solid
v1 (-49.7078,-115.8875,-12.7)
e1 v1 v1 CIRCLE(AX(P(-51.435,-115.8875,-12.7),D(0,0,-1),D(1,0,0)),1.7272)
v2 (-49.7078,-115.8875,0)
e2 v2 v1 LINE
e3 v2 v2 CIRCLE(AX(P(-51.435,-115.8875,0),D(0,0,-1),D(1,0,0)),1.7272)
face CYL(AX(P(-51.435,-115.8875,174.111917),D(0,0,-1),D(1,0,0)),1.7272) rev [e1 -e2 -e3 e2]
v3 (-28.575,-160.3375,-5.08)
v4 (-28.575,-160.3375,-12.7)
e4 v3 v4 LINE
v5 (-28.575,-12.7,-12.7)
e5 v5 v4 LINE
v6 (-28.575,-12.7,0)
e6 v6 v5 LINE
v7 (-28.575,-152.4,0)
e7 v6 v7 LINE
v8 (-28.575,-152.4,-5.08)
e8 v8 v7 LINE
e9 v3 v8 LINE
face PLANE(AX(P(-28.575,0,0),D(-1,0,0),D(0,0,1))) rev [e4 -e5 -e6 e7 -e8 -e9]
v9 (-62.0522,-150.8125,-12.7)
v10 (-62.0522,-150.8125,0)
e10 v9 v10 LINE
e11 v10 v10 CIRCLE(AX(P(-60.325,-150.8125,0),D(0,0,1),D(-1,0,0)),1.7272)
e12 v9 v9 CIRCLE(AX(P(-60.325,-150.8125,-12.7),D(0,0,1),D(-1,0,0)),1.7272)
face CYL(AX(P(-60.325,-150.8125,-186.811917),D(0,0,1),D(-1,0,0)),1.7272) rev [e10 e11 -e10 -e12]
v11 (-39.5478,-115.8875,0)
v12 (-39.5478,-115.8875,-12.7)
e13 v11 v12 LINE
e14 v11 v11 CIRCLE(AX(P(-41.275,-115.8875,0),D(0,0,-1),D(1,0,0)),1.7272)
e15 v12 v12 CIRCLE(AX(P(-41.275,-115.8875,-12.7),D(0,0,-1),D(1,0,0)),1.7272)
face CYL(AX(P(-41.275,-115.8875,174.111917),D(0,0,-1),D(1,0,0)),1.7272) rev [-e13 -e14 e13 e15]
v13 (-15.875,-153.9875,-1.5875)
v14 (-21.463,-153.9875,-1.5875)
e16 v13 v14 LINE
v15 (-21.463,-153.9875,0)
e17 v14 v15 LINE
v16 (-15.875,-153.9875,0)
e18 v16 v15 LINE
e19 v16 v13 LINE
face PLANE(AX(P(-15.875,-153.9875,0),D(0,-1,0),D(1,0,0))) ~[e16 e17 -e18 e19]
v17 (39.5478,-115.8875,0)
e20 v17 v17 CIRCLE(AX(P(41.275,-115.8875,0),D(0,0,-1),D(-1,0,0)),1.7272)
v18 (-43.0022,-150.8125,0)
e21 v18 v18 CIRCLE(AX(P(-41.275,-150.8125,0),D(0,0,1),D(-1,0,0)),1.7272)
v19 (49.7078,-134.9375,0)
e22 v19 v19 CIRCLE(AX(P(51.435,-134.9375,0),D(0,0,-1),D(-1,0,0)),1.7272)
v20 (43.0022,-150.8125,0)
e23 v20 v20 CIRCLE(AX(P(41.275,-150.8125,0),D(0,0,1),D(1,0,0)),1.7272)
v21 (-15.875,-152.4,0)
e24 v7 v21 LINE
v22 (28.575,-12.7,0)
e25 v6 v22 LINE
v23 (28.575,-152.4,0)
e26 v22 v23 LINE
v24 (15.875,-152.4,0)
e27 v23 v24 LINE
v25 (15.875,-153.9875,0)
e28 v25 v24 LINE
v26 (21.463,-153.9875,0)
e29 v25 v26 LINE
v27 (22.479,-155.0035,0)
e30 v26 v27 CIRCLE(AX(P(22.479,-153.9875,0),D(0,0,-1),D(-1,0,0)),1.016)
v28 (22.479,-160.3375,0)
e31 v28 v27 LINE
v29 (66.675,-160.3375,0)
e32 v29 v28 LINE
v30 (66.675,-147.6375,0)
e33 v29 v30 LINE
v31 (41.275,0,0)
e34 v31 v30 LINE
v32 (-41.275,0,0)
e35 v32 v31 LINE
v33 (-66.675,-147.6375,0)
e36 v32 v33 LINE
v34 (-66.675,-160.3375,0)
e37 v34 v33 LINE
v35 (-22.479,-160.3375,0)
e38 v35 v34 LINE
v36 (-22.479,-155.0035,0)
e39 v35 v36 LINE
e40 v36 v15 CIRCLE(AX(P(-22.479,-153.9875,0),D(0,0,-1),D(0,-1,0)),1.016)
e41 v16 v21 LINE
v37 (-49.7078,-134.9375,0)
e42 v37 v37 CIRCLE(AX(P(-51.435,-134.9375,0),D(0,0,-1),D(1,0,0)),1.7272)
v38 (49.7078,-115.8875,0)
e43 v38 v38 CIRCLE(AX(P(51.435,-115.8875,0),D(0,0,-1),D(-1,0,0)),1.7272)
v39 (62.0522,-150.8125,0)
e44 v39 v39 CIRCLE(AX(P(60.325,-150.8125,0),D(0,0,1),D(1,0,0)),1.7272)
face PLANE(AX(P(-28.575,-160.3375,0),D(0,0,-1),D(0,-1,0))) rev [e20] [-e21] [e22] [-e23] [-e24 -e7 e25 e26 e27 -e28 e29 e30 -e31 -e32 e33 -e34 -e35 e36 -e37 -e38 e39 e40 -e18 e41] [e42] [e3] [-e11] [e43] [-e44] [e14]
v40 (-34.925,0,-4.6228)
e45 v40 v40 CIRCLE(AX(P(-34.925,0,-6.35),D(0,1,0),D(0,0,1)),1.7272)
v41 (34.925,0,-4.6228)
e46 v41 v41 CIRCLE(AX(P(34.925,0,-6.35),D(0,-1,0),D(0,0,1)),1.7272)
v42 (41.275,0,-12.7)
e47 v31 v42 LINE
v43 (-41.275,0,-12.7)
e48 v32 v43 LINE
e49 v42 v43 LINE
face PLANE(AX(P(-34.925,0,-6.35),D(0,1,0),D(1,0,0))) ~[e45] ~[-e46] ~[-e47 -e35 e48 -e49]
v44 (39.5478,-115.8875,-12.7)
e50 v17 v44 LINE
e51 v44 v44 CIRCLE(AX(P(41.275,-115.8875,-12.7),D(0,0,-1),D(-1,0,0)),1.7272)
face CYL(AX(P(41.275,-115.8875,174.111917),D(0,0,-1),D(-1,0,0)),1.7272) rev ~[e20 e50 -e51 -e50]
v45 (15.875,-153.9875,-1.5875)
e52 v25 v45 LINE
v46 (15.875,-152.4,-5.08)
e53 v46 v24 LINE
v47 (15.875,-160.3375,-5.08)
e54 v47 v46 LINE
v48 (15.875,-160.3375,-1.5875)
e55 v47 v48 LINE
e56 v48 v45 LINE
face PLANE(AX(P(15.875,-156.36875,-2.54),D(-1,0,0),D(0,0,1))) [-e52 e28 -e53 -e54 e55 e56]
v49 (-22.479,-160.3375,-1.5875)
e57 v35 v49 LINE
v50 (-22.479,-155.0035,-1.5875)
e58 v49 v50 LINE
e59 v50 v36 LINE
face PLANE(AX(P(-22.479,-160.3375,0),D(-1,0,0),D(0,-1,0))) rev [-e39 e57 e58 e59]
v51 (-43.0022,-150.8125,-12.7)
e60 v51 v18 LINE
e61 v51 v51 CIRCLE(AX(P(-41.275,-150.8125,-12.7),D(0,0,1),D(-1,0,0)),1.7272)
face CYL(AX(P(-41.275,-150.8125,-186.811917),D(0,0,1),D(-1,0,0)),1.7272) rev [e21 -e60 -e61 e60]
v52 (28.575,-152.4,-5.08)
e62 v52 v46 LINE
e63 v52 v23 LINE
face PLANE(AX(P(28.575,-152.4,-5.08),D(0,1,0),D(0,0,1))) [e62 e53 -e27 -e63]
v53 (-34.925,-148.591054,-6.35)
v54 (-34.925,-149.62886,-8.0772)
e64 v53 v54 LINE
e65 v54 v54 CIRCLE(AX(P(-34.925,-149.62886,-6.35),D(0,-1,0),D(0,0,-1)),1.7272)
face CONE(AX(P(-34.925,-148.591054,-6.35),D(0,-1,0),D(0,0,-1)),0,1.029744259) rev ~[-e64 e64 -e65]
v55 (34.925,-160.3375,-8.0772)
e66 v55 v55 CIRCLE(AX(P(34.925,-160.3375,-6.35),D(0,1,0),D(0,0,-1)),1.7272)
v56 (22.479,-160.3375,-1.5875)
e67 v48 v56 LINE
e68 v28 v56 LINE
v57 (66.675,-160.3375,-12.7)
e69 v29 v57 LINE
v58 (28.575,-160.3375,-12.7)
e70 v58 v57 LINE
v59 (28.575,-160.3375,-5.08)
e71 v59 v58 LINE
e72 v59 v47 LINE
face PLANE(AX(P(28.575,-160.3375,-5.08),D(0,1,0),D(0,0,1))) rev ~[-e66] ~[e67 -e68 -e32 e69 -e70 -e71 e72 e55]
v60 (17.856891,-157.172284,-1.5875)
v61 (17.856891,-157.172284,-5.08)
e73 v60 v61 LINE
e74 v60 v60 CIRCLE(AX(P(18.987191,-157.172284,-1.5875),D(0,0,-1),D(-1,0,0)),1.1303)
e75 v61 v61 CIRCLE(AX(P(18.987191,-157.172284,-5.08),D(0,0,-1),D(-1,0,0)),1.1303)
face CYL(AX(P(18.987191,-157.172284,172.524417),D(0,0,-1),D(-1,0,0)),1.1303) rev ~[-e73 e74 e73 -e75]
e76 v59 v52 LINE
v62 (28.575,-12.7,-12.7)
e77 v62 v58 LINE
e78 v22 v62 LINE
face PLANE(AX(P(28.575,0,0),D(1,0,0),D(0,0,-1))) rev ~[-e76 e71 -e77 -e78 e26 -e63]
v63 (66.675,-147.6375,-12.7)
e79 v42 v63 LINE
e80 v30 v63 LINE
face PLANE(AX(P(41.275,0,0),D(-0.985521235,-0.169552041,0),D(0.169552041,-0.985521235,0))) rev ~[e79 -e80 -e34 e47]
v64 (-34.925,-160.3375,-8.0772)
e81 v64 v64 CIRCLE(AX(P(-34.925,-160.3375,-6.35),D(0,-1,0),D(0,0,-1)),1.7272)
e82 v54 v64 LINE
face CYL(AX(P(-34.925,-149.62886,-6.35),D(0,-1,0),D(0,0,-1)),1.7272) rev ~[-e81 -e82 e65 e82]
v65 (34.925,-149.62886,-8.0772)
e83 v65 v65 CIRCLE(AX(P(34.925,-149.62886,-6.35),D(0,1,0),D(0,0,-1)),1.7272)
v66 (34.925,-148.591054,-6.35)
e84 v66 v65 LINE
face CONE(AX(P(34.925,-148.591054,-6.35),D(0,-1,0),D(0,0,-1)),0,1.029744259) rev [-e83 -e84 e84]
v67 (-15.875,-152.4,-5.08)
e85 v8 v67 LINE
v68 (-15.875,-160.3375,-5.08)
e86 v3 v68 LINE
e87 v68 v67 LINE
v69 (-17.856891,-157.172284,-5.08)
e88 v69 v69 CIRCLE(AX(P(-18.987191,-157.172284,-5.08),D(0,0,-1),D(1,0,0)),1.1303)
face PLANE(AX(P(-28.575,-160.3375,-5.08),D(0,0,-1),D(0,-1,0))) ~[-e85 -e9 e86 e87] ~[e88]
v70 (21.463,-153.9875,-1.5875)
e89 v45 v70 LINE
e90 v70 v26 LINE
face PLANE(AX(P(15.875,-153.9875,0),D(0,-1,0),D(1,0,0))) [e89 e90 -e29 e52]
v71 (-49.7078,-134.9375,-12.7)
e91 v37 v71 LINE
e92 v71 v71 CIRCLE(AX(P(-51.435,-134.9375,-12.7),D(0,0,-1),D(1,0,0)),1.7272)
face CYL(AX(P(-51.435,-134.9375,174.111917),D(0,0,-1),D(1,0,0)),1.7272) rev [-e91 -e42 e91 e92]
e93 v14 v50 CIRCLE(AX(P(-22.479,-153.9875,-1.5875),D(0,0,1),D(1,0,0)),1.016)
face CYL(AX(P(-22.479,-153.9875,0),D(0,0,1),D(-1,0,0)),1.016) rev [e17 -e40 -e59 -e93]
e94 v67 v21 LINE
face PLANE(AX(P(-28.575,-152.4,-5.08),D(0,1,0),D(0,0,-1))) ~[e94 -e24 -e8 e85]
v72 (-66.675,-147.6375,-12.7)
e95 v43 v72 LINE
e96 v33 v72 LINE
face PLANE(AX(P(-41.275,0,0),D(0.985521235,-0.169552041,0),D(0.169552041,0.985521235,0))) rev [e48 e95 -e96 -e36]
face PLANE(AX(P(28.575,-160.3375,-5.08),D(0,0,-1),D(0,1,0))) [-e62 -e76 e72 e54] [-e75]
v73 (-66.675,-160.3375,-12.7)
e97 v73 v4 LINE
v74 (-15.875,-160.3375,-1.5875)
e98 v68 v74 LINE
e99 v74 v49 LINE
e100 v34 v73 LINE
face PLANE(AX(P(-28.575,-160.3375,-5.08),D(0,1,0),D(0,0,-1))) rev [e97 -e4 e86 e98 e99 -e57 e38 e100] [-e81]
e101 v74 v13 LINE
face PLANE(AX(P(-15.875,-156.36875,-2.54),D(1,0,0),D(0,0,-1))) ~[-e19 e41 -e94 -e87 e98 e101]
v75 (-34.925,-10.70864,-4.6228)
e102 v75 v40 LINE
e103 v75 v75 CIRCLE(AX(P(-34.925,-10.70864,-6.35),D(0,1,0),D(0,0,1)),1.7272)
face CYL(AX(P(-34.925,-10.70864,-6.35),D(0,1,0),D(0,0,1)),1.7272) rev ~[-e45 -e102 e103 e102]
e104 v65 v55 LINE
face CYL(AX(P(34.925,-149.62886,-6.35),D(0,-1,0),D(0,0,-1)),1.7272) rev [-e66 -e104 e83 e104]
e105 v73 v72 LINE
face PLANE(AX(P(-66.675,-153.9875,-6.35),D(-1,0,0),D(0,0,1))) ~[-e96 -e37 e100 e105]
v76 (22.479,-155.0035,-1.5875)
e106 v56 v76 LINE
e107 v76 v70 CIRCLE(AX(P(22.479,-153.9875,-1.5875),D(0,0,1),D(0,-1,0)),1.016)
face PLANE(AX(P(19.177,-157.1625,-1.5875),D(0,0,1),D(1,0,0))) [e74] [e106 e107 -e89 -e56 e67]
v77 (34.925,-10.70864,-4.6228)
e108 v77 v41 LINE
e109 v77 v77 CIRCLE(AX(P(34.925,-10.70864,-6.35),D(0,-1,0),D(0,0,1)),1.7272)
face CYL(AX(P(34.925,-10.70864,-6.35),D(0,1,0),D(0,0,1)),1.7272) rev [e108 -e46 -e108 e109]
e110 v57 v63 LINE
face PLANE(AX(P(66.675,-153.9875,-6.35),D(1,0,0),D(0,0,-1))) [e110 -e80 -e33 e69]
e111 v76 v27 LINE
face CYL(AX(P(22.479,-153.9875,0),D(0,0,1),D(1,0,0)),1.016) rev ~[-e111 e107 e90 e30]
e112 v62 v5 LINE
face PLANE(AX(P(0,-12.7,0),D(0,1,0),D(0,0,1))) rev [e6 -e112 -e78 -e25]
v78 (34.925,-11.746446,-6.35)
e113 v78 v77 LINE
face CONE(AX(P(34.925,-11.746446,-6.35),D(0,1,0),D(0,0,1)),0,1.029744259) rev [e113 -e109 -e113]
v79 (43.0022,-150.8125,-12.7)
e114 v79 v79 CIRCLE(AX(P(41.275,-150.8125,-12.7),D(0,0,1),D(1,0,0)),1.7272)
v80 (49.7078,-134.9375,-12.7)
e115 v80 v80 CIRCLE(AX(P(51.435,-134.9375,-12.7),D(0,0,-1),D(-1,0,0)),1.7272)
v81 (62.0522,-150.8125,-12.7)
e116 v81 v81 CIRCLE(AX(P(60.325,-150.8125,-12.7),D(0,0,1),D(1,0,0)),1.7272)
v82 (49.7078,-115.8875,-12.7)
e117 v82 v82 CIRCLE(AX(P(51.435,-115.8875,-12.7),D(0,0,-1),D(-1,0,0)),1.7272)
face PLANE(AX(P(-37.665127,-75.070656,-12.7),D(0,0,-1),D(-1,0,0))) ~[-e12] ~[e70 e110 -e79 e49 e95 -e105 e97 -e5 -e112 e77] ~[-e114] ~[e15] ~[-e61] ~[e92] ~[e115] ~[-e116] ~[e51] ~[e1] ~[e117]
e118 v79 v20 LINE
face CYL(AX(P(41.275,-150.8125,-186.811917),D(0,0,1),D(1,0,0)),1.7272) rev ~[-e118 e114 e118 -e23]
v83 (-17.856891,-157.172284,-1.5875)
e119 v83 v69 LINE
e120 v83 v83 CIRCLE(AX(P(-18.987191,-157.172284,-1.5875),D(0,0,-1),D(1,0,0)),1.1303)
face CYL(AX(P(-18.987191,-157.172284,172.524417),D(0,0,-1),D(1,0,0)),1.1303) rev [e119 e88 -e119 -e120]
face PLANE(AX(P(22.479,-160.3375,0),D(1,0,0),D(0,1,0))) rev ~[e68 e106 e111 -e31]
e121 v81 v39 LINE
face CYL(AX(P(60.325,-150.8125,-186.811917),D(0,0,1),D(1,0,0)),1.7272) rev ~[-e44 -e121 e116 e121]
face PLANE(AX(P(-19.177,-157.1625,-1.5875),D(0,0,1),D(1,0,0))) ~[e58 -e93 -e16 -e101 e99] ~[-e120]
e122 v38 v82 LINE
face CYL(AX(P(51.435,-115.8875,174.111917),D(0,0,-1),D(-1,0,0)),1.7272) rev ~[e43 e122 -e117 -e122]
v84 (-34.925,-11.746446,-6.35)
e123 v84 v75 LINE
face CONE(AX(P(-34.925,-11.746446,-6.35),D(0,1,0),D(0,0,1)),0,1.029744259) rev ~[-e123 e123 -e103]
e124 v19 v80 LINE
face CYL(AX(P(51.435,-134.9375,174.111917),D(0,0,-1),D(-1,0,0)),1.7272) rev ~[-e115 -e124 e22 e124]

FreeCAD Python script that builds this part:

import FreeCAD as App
import Part
import Sketcher
from FreeCAD import Vector
Q = App.Units.Quantity


def add_polygon(sketch, points):
    """Adds a closed chain of lines whose ends are joined by coincident constraints."""
    first, n = sketch.GeometryCount, len(points)
    for a, b in zip(points, points[1:] + points[:1]):
        sketch.addGeometry(Part.LineSegment(App.Vector(*a, 0), App.Vector(*b, 0)), False)
    for i in range(n):
        sketch.addConstraint(Sketcher.Constraint("Coincident", first + i, 2, first + (i + 1) % n, 1))

doc = App.newDocument("Part")
body = doc.addObject("PartDesign::Body", "Body")

# Sketch on YZ plane
sketch1 = body.newObject("Sketcher::SketchObject", "Sketch")
sketch1.AttachmentSupport = (doc.getObject("YZ_Plane"), [""])
sketch1.MapMode = "FlatFace"
add_polygon(sketch1, [(0, 0), (-13, 0), (-13, -13), (0, -13)])  # lines 0-3
sketch1.addConstraint([
    Sketcher.Constraint("Horizontal", 0),
    Sketcher.Constraint("Vertical", 1),
    Sketcher.Constraint("Horizontal", 2),
    Sketcher.Constraint("Vertical", 3),
    Sketcher.Constraint("Coincident", 3, 2, -1, 1),
    Sketcher.Constraint("Equal", 2, 1),
    Sketcher.Constraint("DistanceX", 0, 2, 0, 1, Q("0.5 in")),
])
pad1 = body.newObject("PartDesign::Pad", "Pad")
pad1.Profile = sketch1
pad1.Length = Q("1.125 in")

# Sketch on XZ plane
sketch2 = body.newObject("Sketcher::SketchObject", "Sketch001")
sketch2.AttachmentSupport = (doc.getObject("XZ_Plane"), [""])
sketch2.MapMode = "FlatFace"
add_polygon(sketch2, [(29, -13), (29, 0), (41, 0), (41, -13)])  # lines 0-3
sketch2.addConstraint([
    Sketcher.Constraint("Vertical", 0),
    Sketcher.Constraint("Horizontal", 1),
    Sketcher.Constraint("Vertical", 2),
    Sketcher.Constraint("Horizontal", 3),
    Sketcher.Constraint("PointOnObject", 0, 2, -1),
    Sketcher.Constraint("Equal", 3, 0),
    Sketcher.Constraint("DistanceX", 1, 1, 1, 2, Q("0.5 in")),
    Sketcher.Constraint("DistanceX", -1, 1, 0, 2, Q("1.125 in")),
])
pad2 = body.newObject("PartDesign::Pad", "Pad001")
pad2.Profile = sketch2
pad2.Length = Q("6.3125 in")

# Sketch on YZ plane
sketch3 = body.newObject("Sketcher::SketchObject", "Sketch002")
sketch3.AttachmentSupport = (doc.getObject("YZ_Plane"), [""])
sketch3.MapMode = "FlatFace"
sketch3.AttachmentOffset = App.Placement(Vector(0, 0, 1.625 * 25.4), App.Rotation())
add_polygon(sketch3, [(-148, 0), (-160, 0), (-160, -13), (-148, -13)])  # lines 0-3
sketch3.addConstraint([
    Sketcher.Constraint("Horizontal", 0),
    Sketcher.Constraint("Vertical", 1),
    Sketcher.Constraint("Horizontal", 2),
    Sketcher.Constraint("Vertical", 3),
    Sketcher.Constraint("PointOnObject", 0, 2, -1),
    Sketcher.Constraint("Equal", 2, 1),
    Sketcher.Constraint("DistanceX", 0, 2, 0, 1, Q("0.5 in")),
    Sketcher.Constraint("DistanceX", 0, 2, -1, 1, Q("6.3125 in")),
])
pad3 = body.newObject("PartDesign::Pad", "Pad002")
pad3.Profile = sketch3
pad3.Length = Q("1 in")

# Sketch on XY plane
sketch4 = body.newObject("Sketcher::SketchObject", "Sketch003")
sketch4.AttachmentSupport = (doc.getObject("XY_Plane"), [""])
sketch4.MapMode = "FlatFace"
add_polygon(sketch4, [(67, -148), (41, 0), (0, 0), (0, -13), (29, -13), (29, -160), (67, -160)])  # lines 0-6
sketch4.addConstraint([
    Sketcher.Constraint("Horizontal", 1),
    Sketcher.Constraint("Vertical", 2),
    Sketcher.Constraint("Horizontal", 3),
    Sketcher.Constraint("Vertical", 4),
    Sketcher.Constraint("Horizontal", 5),
    Sketcher.Constraint("Vertical", 6),
    Sketcher.Constraint("Coincident", 1, 2, -1, 1),
    Sketcher.Constraint("Equal", 2, 6),
    Sketcher.Constraint("DistanceX", 5, 1, 5, 2, Q("1.5 in")),
    Sketcher.Constraint("DistanceY", 2, 2, 2, 1, Q("0.5 in")),
    Sketcher.Constraint("DistanceX", 0, 2, 5, 2, Q("1 in")),
    Sketcher.Constraint("DistanceX", 1, 2, 1, 1, Q("1.625 in")),
    Sketcher.Constraint("DistanceY", 4, 2, 4, 1, Q("5.8125 in")),
])
pad4 = body.newObject("PartDesign::Pad", "Pad003")
pad4.Profile = sketch4
pad4.Length = Q("0.5 in")
pad4.Reversed = True

# Sketch on YZ plane
sketch5 = body.newObject("Sketcher::SketchObject", "Sketch004")
sketch5.AttachmentSupport = (doc.getObject("YZ_Plane"), [""])
sketch5.MapMode = "FlatFace"
sketch5.AttachmentOffset = App.Placement(Vector(0, 0, 1.375 * 25.4), App.Rotation())
add_polygon(sketch5, [(-11.7, -6.3), (0, -6.3), (0, -4.6), (-10.7, -4.6)])  # lines 0-3
sketch5.addGeometry(Part.LineSegment(Vector(0, -6.3, 0), Vector(-11.7, -6.3, 0)), True)  # axis
sketch5.addConstraint([
    Sketcher.Constraint("Horizontal", 0),
    Sketcher.Constraint("Vertical", 1),
    Sketcher.Constraint("Horizontal", 2),
    Sketcher.Constraint("Horizontal", 4),
    Sketcher.Constraint("Coincident", 4, 1, 0, 2),
    Sketcher.Constraint("PointOnObject", 0, 2, -2),
    Sketcher.Constraint("Equal", 0, 4),
    Sketcher.Constraint("Angle", 3, Q("-121 deg")),
    Sketcher.Constraint("DistanceY", 1, 1, 1, 2, Q("0.068 in")),
    Sketcher.Constraint("DistanceY", 0, 2, -1, 1, Q("0.25 in")),
    Sketcher.Constraint("DistanceX", 2, 2, 2, 1, Q("0.4216 in")),
])
groove = body.newObject("PartDesign::Groove", "Groove")
groove.Profile = sketch5
groove.ReferenceAxis = (sketch5, ["Axis0"])
groove.Angle = 360

# Sketch on XY plane
sketch6 = body.newObject("Sketcher::SketchObject", "Sketch005")
sketch6.AttachmentSupport = (doc.getObject("XY_Plane"), [""])
sketch6.MapMode = "FlatFace"
sketch6.addGeometry([
    Part.Circle(Vector(41.3, -115.9, 0), Vector(0, 0, 1), 1.7),
    Part.Circle(Vector(51.4, -134.9, 0), Vector(0, 0, 1), 1.7),
], False)
sketch6.addConstraint([
    Sketcher.Constraint("Equal", 0, 1),
    Sketcher.Constraint("Diameter", 0, Q("0.136 in")),
    Sketcher.Constraint("DistanceX", 0, 3, 1, 3, Q("0.4 in")),
    Sketcher.Constraint("DistanceY", 1, 3, 0, 3, Q("0.75 in")),
    Sketcher.Constraint("DistanceX", -1, 1, 0, 3, Q("1.625 in")),
    Sketcher.Constraint("DistanceY", 0, 3, -1, 1, Q("4.5625 in")),
])
doc.recompute()
hole = body.newObject("PartDesign::Hole", "Hole")
hole.Profile = sketch6
hole.ThreadType = "None"
hole.Diameter = Q("0.136 in")
hole.DepthType = "ThroughAll"

# Sketch on XY plane
sketch7 = body.newObject("Sketcher::SketchObject", "Sketch006")
sketch7.AttachmentSupport = (doc.getObject("XY_Plane"), [""])
sketch7.MapMode = "FlatFace"
sketch7.AttachmentOffset = App.Placement(Vector(0, 0, -0.5 * 25.4), App.Rotation())
sketch7.addGeometry([
    Part.Circle(Vector(41.3, -150.8, 0), Vector(0, 0, 1), 1.7),
    Part.Circle(Vector(60.3, -150.8, 0), Vector(0, 0, 1), 1.7),
], False)
sketch7.addConstraint([
    Sketcher.Constraint("Equal", 0, 1),
    Sketcher.Constraint("Horizontal", 0, 3, 1, 3),
    Sketcher.Constraint("Diameter", 0, Q("0.136 in")),
    Sketcher.Constraint("DistanceX", 0, 3, 1, 3, Q("0.75 in")),
    Sketcher.Constraint("DistanceX", -1, 1, 0, 3, Q("1.625 in")),
    Sketcher.Constraint("DistanceY", 0, 3, -1, 1, Q("5.9375 in")),
])
doc.recompute()
hole2 = body.newObject("PartDesign::Hole", "Hole001")
hole2.Profile = sketch7
hole2.ThreadType = "None"
hole2.Diameter = Q("0.136 in")
hole2.DepthType = "ThroughAll"
hole2.Reversed = True

# Sketch on YZ plane
sketch8 = body.newObject("Sketcher::SketchObject", "Sketch007")
sketch8.AttachmentSupport = (doc.getObject("YZ_Plane"), [""])
sketch8.MapMode = "FlatFace"
sketch8.AttachmentOffset = App.Placement(Vector(0, 0, 1.125 * 25.4), App.Rotation())
add_polygon(sketch8, [(-152, -5), (-160, -5), (-160, 0), (-152, 0)])  # lines 0-3
sketch8.addConstraint([
    Sketcher.Constraint("Horizontal", 0),
    Sketcher.Constraint("Vertical", 1),
    Sketcher.Constraint("Horizontal", 2),
    Sketcher.Constraint("Vertical", 3),
    Sketcher.Constraint("PointOnObject", 1, 2, -1),
    Sketcher.Constraint("DistanceY", 1, 1, 1, 2, Q("0.2 in")),
    Sketcher.Constraint("DistanceX", 2, 2, -1, 1, Q("6 in")),
    Sketcher.Constraint("DistanceX", 0, 2, 0, 1, Q("0.3125 in")),
])
pad5 = body.newObject("PartDesign::Pad", "Pad004")
pad5.Profile = sketch8
pad5.Length = Q("0.5 in")
pad5.Reversed = True

# Sketch on XY plane
sketch9 = body.newObject("Sketcher::SketchObject", "Sketch008")
sketch9.AttachmentSupport = (doc.getObject("XY_Plane"), [""])
sketch9.MapMode = "FlatFace"
add_polygon(sketch9, [(16, -154), (16, -160), (22, -160), (22, -154)])  # lines 0-3
sketch9.addConstraint([
    Sketcher.Constraint("Vertical", 0),
    Sketcher.Constraint("Horizontal", 1),
    Sketcher.Constraint("Vertical", 2),
    Sketcher.Constraint("Horizontal", 3),
    Sketcher.Constraint("DistanceX", 1, 1, 1, 2, Q("0.26 in")),
    Sketcher.Constraint("DistanceY", 0, 2, 0, 1, Q("0.25 in")),
    Sketcher.Constraint("DistanceX", -1, 1, 0, 2, Q("0.625 in")),
    Sketcher.Constraint("DistanceY", 0, 2, -1, 1, Q("6.3125 in")),
])
pocket1 = body.newObject("PartDesign::Pocket", "Pocket")
pocket1.Profile = sketch9
pocket1.Length = Q("0.0625 in")

# Sketch on XY plane
sketch10 = body.newObject("Sketcher::SketchObject", "Sketch009")
sketch10.AttachmentSupport = (doc.getObject("XY_Plane"), [""])
sketch10.MapMode = "FlatFace"
sketch10.AttachmentOffset = App.Placement(Vector(0, 0, -0.0625 * 25.4), App.Rotation())
sketch10.addGeometry(Part.Circle(Vector(19, -157.2, 0), Vector(0, 0, 1), 1.1), False)
sketch10.addConstraint([
    Sketcher.Constraint("Diameter", 0, Q("0.089 in")),
    Sketcher.Constraint("DistanceX", -1, 1, 0, 3, Q("18.987191 mm")),
    Sketcher.Constraint("DistanceY", 0, 3, -1, 1, Q("157.172284 mm")),
])
doc.recompute()
hole3 = body.newObject("PartDesign::Hole", "Hole002")
hole3.Profile = sketch10
hole3.ThreadType = "None"
hole3.Diameter = Q("0.089 in")
hole3.DepthType = "ThroughAll"

# Sketch on XY plane
sketch11 = body.newObject("Sketcher::SketchObject", "Sketch010")
sketch11.AttachmentSupport = (doc.getObject("XY_Plane"), [""])
sketch11.MapMode = "FlatFace"
sketch11.addGeometry(Part.Circle(Vector(22.5, -154, 0), Vector(0, 0, 1), 1), False)
sketch11.addConstraint([
    Sketcher.Constraint("Diameter", 0, Q("0.08 in")),
    Sketcher.Constraint("DistanceX", -1, 1, 0, 3, Q("0.885 in")),
    Sketcher.Constraint("DistanceY", 0, 3, -1, 1, Q("6.0625 in")),
])
pocket2 = body.newObject("PartDesign::Pocket", "Pocket001")
pocket2.Profile = sketch11
pocket2.Length = Q("0.0625 in")

# Sketch on YZ plane
sketch12 = body.newObject("Sketcher::SketchObject", "Sketch011")
sketch12.AttachmentSupport = (doc.getObject("YZ_Plane"), [""])
sketch12.MapMode = "FlatFace"
sketch12.AttachmentOffset = App.Placement(Vector(0, 0, 1.375 * 25.4), App.Rotation())
add_polygon(sketch12, [(-148.6, -6.3), (-160.3, -6.3), (-160.3, -8.1), (-149.6, -8.1)])  # lines 0-3
sketch12.addGeometry(Part.LineSegment(Vector(-160.3, -6.3, 0), Vector(-148.6, -6.3, 0)), True)  # axis
sketch12.addConstraint([
    Sketcher.Constraint("Horizontal", 0),
    Sketcher.Constraint("Vertical", 1),
    Sketcher.Constraint("Horizontal", 2),
    Sketcher.Constraint("Horizontal", 4),
    Sketcher.Constraint("Coincident", 4, 1, 0, 2),
    Sketcher.Constraint("Equal", 0, 4),
    Sketcher.Constraint("Angle", 3, Q("59 deg")),
    Sketcher.Constraint("DistanceY", 1, 2, 1, 1, Q("0.068 in")),
    Sketcher.Constraint("DistanceY", 0, 2, -1, 1, Q("0.25 in")),
    Sketcher.Constraint("DistanceX", 2, 1, 2, 2, Q("0.4216 in")),
    Sketcher.Constraint("DistanceX", 0, 2, -1, 1, Q("6.3125 in")),
])
groove2 = body.newObject("PartDesign::Groove", "Groove001")
groove2.Profile = sketch12
groove2.ReferenceAxis = (sketch12, ["Axis0"])
groove2.Angle = 360

# Sketch on XY plane
sketch13 = body.newObject("Sketcher::SketchObject", "Sketch012")
sketch13.AttachmentSupport = (doc.getObject("XY_Plane"), [""])
sketch13.MapMode = "FlatFace"
sketch13.addGeometry(Part.Circle(Vector(51.4, -115.9, 0), Vector(0, 0, 1), 1.7), False)
sketch13.addConstraint([
    Sketcher.Constraint("Diameter", 0, Q("0.136 in")),
    Sketcher.Constraint("DistanceX", -1, 1, 0, 3, Q("2.025 in")),
    Sketcher.Constraint("DistanceY", 0, 3, -1, 1, Q("4.5625 in")),
])
doc.recompute()
hole4 = body.newObject("PartDesign::Hole", "Hole003")
hole4.Profile = sketch13
hole4.ThreadType = "None"
hole4.Diameter = Q("0.136 in")
hole4.DepthType = "ThroughAll"
doc.recompute()

mirrored = body.newObject("PartDesign::Mirrored", "Mirrored")
mirrored.Originals = [pad1, pad2, pad3, pad4, groove, hole, hole2, pad5, pocket1, hole3, pocket2, groove2, hole4]
mirrored.MirrorPlane = (doc.getObject("YZ_Plane"), [""])
body.Tip = mirrored

doc.recompute()
